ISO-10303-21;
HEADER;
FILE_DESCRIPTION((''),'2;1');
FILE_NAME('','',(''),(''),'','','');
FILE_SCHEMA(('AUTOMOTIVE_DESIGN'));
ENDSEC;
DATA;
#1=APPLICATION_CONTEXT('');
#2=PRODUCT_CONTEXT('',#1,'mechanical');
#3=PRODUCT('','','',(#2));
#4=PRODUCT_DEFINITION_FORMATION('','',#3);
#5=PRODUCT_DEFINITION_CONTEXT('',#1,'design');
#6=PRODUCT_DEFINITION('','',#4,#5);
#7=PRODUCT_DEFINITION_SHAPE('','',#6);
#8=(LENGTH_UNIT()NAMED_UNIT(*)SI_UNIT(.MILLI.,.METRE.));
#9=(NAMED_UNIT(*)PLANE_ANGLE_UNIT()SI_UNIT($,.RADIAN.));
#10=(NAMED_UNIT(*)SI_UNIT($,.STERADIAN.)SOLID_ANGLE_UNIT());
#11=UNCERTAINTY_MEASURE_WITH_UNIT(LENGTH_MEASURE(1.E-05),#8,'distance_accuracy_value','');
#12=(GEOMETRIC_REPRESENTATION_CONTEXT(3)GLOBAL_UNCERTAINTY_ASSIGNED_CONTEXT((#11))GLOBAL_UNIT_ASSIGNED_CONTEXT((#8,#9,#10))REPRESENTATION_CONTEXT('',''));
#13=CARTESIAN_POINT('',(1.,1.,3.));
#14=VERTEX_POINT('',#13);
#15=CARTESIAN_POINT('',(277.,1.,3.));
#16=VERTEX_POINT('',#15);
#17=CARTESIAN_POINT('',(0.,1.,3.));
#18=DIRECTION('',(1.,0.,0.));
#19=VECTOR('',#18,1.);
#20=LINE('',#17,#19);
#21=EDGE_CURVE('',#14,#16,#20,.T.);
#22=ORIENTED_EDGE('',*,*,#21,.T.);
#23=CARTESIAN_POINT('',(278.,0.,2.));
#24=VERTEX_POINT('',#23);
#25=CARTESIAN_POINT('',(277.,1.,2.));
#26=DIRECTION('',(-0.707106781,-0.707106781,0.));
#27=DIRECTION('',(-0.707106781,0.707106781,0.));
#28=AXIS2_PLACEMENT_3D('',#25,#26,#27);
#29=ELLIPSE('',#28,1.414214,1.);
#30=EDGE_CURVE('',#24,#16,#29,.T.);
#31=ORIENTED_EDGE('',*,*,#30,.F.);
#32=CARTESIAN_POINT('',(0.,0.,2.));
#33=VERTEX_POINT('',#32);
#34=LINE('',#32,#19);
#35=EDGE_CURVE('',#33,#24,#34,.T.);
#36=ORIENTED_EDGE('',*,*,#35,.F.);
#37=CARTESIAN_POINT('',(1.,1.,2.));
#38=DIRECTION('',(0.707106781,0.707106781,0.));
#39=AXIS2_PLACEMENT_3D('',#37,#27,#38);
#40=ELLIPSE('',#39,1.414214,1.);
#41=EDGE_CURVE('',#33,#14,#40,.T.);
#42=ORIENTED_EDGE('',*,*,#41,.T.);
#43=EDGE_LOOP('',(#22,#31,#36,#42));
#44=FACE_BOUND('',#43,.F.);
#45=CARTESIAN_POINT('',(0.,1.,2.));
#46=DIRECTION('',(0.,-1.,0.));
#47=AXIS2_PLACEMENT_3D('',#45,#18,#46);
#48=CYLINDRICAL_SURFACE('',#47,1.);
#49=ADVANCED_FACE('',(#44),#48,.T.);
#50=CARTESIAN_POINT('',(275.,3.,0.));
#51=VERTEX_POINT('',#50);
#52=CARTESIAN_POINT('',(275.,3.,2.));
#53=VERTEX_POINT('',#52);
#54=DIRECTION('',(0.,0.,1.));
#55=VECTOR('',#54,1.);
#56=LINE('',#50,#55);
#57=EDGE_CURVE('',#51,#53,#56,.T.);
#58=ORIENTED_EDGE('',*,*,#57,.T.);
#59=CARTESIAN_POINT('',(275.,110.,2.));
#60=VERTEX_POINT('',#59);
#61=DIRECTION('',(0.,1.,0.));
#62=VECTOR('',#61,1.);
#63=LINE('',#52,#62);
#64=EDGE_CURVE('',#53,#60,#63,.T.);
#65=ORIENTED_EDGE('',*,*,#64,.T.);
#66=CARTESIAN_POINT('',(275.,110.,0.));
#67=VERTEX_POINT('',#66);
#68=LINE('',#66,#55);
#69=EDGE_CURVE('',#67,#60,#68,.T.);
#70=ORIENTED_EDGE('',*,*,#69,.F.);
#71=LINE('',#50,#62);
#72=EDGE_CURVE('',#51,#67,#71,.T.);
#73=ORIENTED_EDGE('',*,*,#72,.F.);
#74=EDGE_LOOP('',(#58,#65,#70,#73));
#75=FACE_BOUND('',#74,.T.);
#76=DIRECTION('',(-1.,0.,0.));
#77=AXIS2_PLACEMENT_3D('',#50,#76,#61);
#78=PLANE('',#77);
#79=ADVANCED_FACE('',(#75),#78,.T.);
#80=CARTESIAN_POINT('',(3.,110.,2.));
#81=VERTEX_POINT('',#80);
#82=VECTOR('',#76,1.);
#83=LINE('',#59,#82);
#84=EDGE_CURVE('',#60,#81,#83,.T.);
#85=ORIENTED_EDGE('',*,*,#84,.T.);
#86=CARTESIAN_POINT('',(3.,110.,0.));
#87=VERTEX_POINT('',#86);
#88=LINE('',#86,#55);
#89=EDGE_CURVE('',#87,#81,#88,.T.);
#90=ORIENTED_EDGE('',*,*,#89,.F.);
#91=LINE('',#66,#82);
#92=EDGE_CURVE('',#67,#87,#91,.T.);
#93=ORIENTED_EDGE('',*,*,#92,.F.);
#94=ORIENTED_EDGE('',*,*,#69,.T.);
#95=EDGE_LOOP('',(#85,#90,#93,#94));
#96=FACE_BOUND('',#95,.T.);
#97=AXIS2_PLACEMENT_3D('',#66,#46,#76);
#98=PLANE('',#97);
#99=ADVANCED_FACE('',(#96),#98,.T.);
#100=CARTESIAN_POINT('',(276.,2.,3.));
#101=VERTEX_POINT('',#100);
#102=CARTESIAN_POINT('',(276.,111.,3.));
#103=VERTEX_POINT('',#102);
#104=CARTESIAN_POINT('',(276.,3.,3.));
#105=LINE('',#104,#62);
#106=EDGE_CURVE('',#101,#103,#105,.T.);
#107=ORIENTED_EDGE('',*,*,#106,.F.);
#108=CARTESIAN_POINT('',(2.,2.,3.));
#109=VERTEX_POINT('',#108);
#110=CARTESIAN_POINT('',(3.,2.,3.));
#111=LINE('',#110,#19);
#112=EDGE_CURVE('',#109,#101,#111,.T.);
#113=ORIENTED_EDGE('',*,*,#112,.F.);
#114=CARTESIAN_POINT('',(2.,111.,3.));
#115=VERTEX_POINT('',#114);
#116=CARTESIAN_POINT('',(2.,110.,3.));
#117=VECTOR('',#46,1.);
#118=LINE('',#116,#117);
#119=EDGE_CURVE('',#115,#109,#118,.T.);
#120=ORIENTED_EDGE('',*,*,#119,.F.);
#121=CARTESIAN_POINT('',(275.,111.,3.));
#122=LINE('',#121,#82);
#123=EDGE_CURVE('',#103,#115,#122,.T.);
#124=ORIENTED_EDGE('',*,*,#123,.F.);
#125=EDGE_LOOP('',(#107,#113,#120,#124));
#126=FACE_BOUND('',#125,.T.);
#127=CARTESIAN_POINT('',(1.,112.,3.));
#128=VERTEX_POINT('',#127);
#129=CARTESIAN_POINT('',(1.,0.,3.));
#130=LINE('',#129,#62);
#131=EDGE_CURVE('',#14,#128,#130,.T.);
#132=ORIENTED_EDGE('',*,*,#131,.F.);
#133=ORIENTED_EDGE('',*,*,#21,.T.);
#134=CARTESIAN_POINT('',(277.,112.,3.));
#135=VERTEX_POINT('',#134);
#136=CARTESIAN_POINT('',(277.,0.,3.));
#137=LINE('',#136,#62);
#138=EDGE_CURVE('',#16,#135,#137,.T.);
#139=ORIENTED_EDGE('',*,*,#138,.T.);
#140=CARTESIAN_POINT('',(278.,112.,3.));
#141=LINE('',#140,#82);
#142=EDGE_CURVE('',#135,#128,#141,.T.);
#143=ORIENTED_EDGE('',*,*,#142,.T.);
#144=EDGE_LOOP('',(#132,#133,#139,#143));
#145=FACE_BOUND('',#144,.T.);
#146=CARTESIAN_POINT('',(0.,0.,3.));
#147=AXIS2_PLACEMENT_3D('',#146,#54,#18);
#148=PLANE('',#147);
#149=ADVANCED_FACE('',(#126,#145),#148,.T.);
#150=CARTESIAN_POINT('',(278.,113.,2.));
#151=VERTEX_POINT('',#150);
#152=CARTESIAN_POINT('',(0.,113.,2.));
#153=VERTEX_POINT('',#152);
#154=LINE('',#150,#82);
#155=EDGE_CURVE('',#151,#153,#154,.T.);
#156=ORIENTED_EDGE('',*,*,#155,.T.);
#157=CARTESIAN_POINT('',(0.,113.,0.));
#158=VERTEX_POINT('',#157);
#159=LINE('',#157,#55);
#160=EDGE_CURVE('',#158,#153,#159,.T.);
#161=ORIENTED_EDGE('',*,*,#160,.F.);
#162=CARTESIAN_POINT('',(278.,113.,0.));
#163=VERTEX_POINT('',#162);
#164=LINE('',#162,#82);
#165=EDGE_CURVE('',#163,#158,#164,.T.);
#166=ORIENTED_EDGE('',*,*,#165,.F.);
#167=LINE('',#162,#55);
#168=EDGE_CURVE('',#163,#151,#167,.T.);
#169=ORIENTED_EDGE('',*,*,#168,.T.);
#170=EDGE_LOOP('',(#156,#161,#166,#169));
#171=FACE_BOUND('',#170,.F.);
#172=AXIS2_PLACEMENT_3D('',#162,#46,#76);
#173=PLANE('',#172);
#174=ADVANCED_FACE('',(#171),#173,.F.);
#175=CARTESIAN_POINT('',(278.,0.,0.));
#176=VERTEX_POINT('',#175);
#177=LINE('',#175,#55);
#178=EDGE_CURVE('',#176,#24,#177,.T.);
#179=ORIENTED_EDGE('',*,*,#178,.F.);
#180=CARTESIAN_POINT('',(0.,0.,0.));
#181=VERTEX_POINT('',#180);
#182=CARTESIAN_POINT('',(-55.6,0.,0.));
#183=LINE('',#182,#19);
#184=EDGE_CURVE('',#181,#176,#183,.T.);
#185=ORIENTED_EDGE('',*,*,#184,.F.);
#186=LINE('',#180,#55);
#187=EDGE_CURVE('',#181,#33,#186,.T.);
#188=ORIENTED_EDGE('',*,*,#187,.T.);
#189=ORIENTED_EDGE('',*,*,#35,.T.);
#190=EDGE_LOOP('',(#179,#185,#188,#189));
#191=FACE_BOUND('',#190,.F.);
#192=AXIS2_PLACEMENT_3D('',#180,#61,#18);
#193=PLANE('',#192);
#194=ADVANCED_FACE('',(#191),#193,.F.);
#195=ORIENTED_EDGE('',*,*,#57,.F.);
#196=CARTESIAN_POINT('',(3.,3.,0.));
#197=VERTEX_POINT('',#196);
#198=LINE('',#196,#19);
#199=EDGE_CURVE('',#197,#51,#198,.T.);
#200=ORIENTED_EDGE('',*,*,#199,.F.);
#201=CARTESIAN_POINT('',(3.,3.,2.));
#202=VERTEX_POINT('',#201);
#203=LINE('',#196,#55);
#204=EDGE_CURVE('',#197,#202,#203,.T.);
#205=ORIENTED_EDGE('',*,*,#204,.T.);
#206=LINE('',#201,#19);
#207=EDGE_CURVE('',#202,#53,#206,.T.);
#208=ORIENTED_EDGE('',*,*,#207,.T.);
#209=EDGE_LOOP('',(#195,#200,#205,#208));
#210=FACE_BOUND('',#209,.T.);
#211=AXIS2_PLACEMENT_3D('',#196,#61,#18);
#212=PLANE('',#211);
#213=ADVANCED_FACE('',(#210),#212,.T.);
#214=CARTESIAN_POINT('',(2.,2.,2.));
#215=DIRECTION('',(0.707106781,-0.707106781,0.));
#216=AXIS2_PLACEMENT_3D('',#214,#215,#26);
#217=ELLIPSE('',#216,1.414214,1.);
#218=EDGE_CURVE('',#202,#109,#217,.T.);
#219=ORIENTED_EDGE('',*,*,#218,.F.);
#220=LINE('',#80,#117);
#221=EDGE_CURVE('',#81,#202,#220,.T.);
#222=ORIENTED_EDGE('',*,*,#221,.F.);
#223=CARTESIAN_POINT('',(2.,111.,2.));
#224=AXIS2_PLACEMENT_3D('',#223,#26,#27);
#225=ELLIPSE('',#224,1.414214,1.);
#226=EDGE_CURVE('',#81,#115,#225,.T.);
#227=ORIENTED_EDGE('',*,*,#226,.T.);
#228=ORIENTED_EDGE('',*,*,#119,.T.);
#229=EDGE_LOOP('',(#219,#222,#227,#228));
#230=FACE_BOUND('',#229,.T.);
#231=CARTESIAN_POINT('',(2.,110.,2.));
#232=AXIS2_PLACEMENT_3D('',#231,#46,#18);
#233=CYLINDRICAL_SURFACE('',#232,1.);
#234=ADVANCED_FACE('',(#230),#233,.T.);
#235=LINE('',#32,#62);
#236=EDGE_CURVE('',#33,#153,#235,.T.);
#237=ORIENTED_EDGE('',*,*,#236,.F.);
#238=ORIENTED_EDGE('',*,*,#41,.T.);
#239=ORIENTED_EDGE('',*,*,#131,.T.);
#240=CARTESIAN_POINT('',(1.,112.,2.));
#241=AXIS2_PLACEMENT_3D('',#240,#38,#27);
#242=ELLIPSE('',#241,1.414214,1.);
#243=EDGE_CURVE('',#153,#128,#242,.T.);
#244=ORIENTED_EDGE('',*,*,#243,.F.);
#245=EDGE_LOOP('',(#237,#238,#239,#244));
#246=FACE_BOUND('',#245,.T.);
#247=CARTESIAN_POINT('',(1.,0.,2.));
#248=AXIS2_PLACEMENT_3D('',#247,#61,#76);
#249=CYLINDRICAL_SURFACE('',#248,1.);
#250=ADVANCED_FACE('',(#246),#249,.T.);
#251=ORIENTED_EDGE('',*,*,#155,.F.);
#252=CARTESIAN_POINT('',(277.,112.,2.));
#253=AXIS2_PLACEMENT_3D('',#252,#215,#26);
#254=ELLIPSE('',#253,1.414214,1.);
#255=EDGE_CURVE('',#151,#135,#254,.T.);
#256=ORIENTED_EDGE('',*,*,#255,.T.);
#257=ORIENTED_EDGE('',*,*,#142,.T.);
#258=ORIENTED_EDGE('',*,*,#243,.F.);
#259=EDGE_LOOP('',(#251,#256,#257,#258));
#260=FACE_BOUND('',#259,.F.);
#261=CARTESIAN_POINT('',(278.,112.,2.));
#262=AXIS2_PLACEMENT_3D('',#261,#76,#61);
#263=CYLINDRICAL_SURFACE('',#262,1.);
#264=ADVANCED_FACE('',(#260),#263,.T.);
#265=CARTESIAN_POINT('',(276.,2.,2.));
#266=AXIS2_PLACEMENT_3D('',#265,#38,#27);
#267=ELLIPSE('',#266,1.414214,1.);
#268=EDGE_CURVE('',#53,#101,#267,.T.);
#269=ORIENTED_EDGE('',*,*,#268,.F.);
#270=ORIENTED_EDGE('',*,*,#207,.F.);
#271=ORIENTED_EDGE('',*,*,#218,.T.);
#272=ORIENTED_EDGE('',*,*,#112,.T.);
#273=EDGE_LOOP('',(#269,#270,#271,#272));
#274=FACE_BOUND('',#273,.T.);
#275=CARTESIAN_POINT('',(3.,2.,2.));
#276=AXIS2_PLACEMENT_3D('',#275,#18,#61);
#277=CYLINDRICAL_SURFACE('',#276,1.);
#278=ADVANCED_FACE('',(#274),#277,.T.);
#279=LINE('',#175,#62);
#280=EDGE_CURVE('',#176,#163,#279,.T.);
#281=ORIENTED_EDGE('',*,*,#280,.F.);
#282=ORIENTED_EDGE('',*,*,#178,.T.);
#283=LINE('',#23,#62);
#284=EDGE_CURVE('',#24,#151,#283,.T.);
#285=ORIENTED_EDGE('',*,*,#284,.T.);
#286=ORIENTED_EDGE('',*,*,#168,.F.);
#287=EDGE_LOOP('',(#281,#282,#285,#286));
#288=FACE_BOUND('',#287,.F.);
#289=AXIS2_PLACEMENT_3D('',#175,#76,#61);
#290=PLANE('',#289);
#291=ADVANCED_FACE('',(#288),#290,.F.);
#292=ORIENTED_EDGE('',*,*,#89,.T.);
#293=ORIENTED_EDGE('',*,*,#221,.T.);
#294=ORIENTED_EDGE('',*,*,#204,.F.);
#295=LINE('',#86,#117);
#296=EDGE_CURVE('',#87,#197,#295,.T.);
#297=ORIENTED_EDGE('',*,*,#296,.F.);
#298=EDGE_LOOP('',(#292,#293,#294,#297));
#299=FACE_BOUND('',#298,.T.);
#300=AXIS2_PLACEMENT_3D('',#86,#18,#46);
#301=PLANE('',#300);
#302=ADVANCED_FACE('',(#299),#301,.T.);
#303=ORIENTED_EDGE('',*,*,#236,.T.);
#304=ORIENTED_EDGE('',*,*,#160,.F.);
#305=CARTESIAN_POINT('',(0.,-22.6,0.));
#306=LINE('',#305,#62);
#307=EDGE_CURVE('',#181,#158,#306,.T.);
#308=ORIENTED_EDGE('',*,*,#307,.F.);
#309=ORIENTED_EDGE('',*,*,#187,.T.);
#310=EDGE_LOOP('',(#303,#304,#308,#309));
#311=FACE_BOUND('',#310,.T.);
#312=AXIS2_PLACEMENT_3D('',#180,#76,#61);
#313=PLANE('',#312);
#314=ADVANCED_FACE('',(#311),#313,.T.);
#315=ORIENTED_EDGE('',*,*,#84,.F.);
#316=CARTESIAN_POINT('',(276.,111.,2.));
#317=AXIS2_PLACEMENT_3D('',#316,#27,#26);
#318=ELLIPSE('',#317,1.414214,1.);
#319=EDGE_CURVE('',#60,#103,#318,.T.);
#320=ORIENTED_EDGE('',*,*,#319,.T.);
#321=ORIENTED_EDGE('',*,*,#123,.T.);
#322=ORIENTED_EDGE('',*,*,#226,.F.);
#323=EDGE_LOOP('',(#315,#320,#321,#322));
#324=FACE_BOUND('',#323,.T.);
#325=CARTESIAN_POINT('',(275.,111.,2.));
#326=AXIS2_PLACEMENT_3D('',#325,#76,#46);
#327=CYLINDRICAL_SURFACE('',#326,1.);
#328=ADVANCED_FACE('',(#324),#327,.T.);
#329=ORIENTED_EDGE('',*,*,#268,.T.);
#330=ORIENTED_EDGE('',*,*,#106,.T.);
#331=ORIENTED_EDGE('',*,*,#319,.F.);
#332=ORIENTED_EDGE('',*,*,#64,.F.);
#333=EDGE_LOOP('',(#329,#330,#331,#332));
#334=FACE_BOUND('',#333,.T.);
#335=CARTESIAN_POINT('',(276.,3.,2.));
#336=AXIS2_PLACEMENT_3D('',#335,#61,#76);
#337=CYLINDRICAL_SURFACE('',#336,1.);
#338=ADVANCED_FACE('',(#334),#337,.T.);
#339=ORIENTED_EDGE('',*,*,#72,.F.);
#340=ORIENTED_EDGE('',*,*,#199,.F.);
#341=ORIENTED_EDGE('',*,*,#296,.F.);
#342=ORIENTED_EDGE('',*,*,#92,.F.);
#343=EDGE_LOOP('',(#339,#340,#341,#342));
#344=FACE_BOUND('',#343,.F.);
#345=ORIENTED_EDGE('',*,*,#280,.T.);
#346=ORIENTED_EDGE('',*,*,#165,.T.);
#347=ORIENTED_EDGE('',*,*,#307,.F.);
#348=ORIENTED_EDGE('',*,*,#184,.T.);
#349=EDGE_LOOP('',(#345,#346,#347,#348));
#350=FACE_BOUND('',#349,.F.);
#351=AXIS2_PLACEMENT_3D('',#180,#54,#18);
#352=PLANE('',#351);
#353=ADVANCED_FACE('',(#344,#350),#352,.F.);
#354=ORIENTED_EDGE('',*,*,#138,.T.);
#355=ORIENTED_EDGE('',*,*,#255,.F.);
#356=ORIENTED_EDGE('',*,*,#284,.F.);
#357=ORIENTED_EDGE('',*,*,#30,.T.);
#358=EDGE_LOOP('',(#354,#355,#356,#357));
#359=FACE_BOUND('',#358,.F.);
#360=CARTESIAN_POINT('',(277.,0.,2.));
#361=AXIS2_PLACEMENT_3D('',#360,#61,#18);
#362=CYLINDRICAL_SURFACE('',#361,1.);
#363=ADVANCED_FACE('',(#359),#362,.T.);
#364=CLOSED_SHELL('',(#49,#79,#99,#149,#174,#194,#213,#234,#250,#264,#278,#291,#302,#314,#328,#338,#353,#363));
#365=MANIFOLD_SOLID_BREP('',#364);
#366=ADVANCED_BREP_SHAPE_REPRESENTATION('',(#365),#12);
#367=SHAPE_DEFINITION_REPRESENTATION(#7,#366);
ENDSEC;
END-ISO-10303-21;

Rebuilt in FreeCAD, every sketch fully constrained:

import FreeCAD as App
import Part
import Sketcher
from FreeCAD import Vector
Q = App.Units.Quantity


def edges_at(feature, points):
    """Names of the edges that pass closest to the given points."""
    edges = feature.Shape.Edges
    near = lambda p: min(range(len(edges)), key=lambda i: edges[i].distToShape(Part.Vertex(*p))[0])
    return sorted({f"Edge{near(p) + 1}" for p in points})

doc = App.newDocument("Part")
body = doc.addObject("PartDesign::Body", "Body")

# Sketch on XY plane
sketch1 = body.newObject("Sketcher::SketchObject", "Sketch")
sketch1.AttachmentSupport = (doc.getObject("XY_Plane"), [""])
sketch1.MapMode = "FlatFace"
sketch1.addGeometry(Part.LineSegment(Vector(0, 113, 0), Vector(0, 0, 0)), False)
sketch1.addGeometry(Part.LineSegment(Vector(0, 0, 0), Vector(278, 0, 0)), False)
sketch1.addGeometry(Part.LineSegment(Vector(278, 0, 0), Vector(278, 113, 0)), False)
sketch1.addGeometry(Part.LineSegment(Vector(278, 113, 0), Vector(0, 113, 0)), False)
sketch1.addGeometry(Part.LineSegment(Vector(275, 3, 0), Vector(3, 3, 0)), False)
sketch1.addGeometry(Part.LineSegment(Vector(3, 3, 0), Vector(3, 110, 0)), False)
sketch1.addGeometry(Part.LineSegment(Vector(3, 110, 0), Vector(275, 110, 0)), False)
sketch1.addGeometry(Part.LineSegment(Vector(275, 110, 0), Vector(275, 3, 0)), False)
sketch1.addConstraint(Sketcher.Constraint("Coincident", 0, 2, 1, 1))
sketch1.addConstraint(Sketcher.Constraint("Coincident", 1, 2, 2, 1))
sketch1.addConstraint(Sketcher.Constraint("Coincident", 2, 2, 3, 1))
sketch1.addConstraint(Sketcher.Constraint("Coincident", 3, 2, 0, 1))
sketch1.addConstraint(Sketcher.Constraint("Coincident", 4, 2, 5, 1))
sketch1.addConstraint(Sketcher.Constraint("Coincident", 5, 2, 6, 1))
sketch1.addConstraint(Sketcher.Constraint("Coincident", 6, 2, 7, 1))
sketch1.addConstraint(Sketcher.Constraint("Coincident", 7, 2, 4, 1))
sketch1.addConstraint(Sketcher.Constraint("Vertical", 0))
sketch1.addConstraint(Sketcher.Constraint("Horizontal", 1))
sketch1.addConstraint(Sketcher.Constraint("Vertical", 2))
sketch1.addConstraint(Sketcher.Constraint("Horizontal", 3))
sketch1.addConstraint(Sketcher.Constraint("Horizontal", 4))
sketch1.addConstraint(Sketcher.Constraint("Vertical", 5))
sketch1.addConstraint(Sketcher.Constraint("Horizontal", 6))
sketch1.addConstraint(Sketcher.Constraint("Vertical", 7))
sketch1.addConstraint(Sketcher.Constraint("Coincident", 0, 2, -1, 1))
sketch1.addConstraint(Sketcher.Constraint("DistanceX", 4, 2, 4, 1, Q("272 mm")))
sketch1.addConstraint(Sketcher.Constraint("DistanceY", 5, 1, 5, 2, Q("107 mm")))
sketch1.addConstraint(Sketcher.Constraint("DistanceX", -1, 1, 4, 2, Q("3 mm")))
sketch1.addConstraint(Sketcher.Constraint("DistanceY", -1, 1, 4, 2, Q("3 mm")))
sketch1.addConstraint(Sketcher.Constraint("DistanceY", 5, 2, 3, 2, Q("3 mm")))
sketch1.addConstraint(Sketcher.Constraint("DistanceX", 6, 2, 2, 2, Q("3 mm")))
pad1 = body.newObject("PartDesign::Pad", "Pad")
pad1.Profile = sketch1
pad1.Length = 3
doc.recompute()

fillet = body.newObject("PartDesign::Fillet", "Fillet")
fillet.Base = (pad1, edges_at(pad1, [
    (139, 110, 3),
    (139, 113, 3),
    (275, 56.5, 3),
    (278, 56.5, 3),
    (0, 56.5, 3),
    (3, 56.5, 3),
    (139, 3, 3),
    (139, 0, 3),
]))
fillet.Radius = 1

doc.recompute()
